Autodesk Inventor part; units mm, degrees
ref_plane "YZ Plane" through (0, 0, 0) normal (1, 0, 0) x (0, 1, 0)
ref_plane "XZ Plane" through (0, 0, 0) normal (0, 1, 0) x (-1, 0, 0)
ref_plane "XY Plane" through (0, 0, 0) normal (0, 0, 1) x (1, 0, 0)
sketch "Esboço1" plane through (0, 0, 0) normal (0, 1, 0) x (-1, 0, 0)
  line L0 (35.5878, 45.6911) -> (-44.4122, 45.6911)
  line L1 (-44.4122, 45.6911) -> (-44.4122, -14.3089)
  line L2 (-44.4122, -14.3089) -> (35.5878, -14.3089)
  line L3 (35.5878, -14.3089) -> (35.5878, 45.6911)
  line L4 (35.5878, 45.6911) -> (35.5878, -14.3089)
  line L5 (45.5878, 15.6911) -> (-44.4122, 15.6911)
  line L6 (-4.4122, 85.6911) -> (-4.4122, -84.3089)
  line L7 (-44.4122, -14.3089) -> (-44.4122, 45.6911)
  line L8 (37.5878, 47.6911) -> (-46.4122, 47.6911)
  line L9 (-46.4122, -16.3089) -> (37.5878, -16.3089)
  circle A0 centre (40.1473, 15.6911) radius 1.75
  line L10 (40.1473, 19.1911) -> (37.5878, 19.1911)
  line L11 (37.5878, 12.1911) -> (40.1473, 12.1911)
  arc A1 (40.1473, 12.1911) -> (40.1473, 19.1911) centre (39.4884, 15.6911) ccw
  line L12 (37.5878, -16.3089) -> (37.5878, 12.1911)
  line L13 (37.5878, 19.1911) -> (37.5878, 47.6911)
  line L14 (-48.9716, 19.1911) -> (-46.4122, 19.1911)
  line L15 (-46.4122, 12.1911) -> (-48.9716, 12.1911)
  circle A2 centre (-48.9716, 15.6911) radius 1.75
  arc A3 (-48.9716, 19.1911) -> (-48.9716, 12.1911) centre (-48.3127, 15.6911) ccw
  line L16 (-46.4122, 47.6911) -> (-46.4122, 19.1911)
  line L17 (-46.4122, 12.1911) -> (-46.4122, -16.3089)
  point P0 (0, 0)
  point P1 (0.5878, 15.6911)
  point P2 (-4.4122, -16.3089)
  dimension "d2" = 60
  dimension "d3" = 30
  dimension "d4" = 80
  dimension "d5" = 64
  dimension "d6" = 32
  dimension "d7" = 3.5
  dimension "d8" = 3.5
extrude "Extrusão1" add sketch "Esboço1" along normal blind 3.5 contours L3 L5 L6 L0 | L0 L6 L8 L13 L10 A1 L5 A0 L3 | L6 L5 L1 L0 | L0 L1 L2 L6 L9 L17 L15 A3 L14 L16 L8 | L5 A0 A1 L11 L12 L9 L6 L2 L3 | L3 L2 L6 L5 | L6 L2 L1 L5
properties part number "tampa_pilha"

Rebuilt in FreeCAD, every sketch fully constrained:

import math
import FreeCAD as App
import Part
import Sketcher

doc = App.newDocument("Part")
body = doc.addObject("PartDesign::Body", "Body")

# Sketch on XZ plane
sketch1 = body.newObject("Sketcher::SketchObject", "Sketch")
sketch1.AttachmentSupport = (doc.getObject("XZ_Plane"), [""])
sketch1.MapMode = "FlatFace"
sketch1.addGeometry([
    Part.LineSegment(App.Vector(-37.6, 47.7, 0), App.Vector(46.4, 47.7, 0)),  # 0
    Part.LineSegment(App.Vector(46.4, 47.7, 0), App.Vector(46.4, 19.2, 0)),  # 1
    Part.LineSegment(App.Vector(46.4, 19.2, 0), App.Vector(49, 19.2, 0)),  # 2
    Part.ArcOfCircle(Part.Circle(App.Vector(48.3, 15.7, 0), App.Vector(0, 0, 1), 3.6), math.radians(-79), math.radians(79)),  # 3
    Part.LineSegment(App.Vector(49, 12.2, 0), App.Vector(46.4, 12.2, 0)),  # 4
    Part.LineSegment(App.Vector(46.4, 12.2, 0), App.Vector(46.4, -16.3, 0)),  # 5
    Part.LineSegment(App.Vector(46.4, -16.3, 0), App.Vector(-37.6, -16.3, 0)),  # 6
    Part.LineSegment(App.Vector(-37.6, -16.3, 0), App.Vector(-37.6, 12.2, 0)),  # 7
    Part.LineSegment(App.Vector(-37.6, 12.2, 0), App.Vector(-40.1, 12.2, 0)),  # 8
    Part.ArcOfCircle(Part.Circle(App.Vector(-39.5, 15.7, 0), App.Vector(0, 0, 1), 3.6), math.radians(101), math.radians(259)),  # 9
    Part.LineSegment(App.Vector(-40.1, 19.2, 0), App.Vector(-37.6, 19.2, 0)),  # 10
    Part.LineSegment(App.Vector(-37.6, 19.2, 0), App.Vector(-37.6, 47.7, 0)),  # 11
    Part.Circle(App.Vector(-40.1, 15.7, 0), App.Vector(0, 0, 1), 1.8),  # 12
    Part.Circle(App.Vector(49, 15.7, 0), App.Vector(0, 0, 1), 1.8),  # 13
], False)
sketch1.addConstraint([
    Sketcher.Constraint("Coincident", 0, 2, 1, 1),
    Sketcher.Constraint("Coincident", 1, 2, 2, 1),
    Sketcher.Constraint("Coincident", 2, 2, 3, 2),
    Sketcher.Constraint("Coincident", 3, 1, 4, 1),
    Sketcher.Constraint("Coincident", 4, 2, 5, 1),
    Sketcher.Constraint("Coincident", 5, 2, 6, 1),
    Sketcher.Constraint("Coincident", 6, 2, 7, 1),
    Sketcher.Constraint("Coincident", 7, 2, 8, 1),
    Sketcher.Constraint("Coincident", 8, 2, 9, 2),
    Sketcher.Constraint("Coincident", 9, 1, 10, 1),
    Sketcher.Constraint("Coincident", 10, 2, 11, 1),
    Sketcher.Constraint("Coincident", 11, 2, 0, 1),
    Sketcher.Constraint("Horizontal", 0),
    Sketcher.Constraint("Vertical", 1),
    Sketcher.Constraint("Horizontal", 2),
    Sketcher.Constraint("Horizontal", 4),
    Sketcher.Constraint("Vertical", 5),
    Sketcher.Constraint("Horizontal", 6),
    Sketcher.Constraint("Vertical", 7),
    Sketcher.Constraint("Horizontal", 8),
    Sketcher.Constraint("Horizontal", 10),
    Sketcher.Constraint("Vertical", 11),
    Sketcher.Constraint("Equal", 3, 9),
    Sketcher.Constraint("Equal", 12, 13),
    Sketcher.Constraint("Horizontal", 3, 3, 9, 3),
    Sketcher.Constraint("Horizontal", 9, 3, 12, 3),
    Sketcher.Constraint("Horizontal", 12, 3, 13, 3),
    Sketcher.Constraint("Horizontal", 4, 2, 7, 2),
    Sketcher.Constraint("Horizontal", 2, 2, 9, 1),
    Sketcher.Constraint("Vertical", 13, 3, 2, 2),
    Sketcher.Constraint("Vertical", 2, 2, 3, 1),
    Sketcher.Constraint("Vertical", 1, 2, 4, 2),
    Sketcher.Constraint("Vertical", 12, 3, 8, 2),
    Sketcher.Constraint("Vertical", 7, 2, 10, 2),
    Sketcher.Constraint("Equal", 4, 8),
    Sketcher.Constraint("Equal", 1, 5),
    Sketcher.Constraint("Diameter", 12, 3.5),
    Sketcher.Constraint("DistanceY", 3, 3, 0, 2, 32.0),
    Sketcher.Constraint("DistanceY", 3, 3, 1, 2, 3.5),
    Sketcher.Constraint("DistanceX", 0, 1, 0, 2, 84.0),
    Sketcher.Constraint("Radius", 3, 3.5615),
    Sketcher.Constraint("DistanceX", 12, 3, 3, 3, 88.46),
    Sketcher.Constraint("DistanceY", -1, 1, 3, 3, 15.691),
    Sketcher.Constraint("DistanceX", -1, 1, 3, 3, 48.3127),
])
pad1 = body.newObject("PartDesign::Pad", "Pad")
pad1.Profile = sketch1
pad1.Length = 3.5
pad1.Reversed = True

doc.recompute()
